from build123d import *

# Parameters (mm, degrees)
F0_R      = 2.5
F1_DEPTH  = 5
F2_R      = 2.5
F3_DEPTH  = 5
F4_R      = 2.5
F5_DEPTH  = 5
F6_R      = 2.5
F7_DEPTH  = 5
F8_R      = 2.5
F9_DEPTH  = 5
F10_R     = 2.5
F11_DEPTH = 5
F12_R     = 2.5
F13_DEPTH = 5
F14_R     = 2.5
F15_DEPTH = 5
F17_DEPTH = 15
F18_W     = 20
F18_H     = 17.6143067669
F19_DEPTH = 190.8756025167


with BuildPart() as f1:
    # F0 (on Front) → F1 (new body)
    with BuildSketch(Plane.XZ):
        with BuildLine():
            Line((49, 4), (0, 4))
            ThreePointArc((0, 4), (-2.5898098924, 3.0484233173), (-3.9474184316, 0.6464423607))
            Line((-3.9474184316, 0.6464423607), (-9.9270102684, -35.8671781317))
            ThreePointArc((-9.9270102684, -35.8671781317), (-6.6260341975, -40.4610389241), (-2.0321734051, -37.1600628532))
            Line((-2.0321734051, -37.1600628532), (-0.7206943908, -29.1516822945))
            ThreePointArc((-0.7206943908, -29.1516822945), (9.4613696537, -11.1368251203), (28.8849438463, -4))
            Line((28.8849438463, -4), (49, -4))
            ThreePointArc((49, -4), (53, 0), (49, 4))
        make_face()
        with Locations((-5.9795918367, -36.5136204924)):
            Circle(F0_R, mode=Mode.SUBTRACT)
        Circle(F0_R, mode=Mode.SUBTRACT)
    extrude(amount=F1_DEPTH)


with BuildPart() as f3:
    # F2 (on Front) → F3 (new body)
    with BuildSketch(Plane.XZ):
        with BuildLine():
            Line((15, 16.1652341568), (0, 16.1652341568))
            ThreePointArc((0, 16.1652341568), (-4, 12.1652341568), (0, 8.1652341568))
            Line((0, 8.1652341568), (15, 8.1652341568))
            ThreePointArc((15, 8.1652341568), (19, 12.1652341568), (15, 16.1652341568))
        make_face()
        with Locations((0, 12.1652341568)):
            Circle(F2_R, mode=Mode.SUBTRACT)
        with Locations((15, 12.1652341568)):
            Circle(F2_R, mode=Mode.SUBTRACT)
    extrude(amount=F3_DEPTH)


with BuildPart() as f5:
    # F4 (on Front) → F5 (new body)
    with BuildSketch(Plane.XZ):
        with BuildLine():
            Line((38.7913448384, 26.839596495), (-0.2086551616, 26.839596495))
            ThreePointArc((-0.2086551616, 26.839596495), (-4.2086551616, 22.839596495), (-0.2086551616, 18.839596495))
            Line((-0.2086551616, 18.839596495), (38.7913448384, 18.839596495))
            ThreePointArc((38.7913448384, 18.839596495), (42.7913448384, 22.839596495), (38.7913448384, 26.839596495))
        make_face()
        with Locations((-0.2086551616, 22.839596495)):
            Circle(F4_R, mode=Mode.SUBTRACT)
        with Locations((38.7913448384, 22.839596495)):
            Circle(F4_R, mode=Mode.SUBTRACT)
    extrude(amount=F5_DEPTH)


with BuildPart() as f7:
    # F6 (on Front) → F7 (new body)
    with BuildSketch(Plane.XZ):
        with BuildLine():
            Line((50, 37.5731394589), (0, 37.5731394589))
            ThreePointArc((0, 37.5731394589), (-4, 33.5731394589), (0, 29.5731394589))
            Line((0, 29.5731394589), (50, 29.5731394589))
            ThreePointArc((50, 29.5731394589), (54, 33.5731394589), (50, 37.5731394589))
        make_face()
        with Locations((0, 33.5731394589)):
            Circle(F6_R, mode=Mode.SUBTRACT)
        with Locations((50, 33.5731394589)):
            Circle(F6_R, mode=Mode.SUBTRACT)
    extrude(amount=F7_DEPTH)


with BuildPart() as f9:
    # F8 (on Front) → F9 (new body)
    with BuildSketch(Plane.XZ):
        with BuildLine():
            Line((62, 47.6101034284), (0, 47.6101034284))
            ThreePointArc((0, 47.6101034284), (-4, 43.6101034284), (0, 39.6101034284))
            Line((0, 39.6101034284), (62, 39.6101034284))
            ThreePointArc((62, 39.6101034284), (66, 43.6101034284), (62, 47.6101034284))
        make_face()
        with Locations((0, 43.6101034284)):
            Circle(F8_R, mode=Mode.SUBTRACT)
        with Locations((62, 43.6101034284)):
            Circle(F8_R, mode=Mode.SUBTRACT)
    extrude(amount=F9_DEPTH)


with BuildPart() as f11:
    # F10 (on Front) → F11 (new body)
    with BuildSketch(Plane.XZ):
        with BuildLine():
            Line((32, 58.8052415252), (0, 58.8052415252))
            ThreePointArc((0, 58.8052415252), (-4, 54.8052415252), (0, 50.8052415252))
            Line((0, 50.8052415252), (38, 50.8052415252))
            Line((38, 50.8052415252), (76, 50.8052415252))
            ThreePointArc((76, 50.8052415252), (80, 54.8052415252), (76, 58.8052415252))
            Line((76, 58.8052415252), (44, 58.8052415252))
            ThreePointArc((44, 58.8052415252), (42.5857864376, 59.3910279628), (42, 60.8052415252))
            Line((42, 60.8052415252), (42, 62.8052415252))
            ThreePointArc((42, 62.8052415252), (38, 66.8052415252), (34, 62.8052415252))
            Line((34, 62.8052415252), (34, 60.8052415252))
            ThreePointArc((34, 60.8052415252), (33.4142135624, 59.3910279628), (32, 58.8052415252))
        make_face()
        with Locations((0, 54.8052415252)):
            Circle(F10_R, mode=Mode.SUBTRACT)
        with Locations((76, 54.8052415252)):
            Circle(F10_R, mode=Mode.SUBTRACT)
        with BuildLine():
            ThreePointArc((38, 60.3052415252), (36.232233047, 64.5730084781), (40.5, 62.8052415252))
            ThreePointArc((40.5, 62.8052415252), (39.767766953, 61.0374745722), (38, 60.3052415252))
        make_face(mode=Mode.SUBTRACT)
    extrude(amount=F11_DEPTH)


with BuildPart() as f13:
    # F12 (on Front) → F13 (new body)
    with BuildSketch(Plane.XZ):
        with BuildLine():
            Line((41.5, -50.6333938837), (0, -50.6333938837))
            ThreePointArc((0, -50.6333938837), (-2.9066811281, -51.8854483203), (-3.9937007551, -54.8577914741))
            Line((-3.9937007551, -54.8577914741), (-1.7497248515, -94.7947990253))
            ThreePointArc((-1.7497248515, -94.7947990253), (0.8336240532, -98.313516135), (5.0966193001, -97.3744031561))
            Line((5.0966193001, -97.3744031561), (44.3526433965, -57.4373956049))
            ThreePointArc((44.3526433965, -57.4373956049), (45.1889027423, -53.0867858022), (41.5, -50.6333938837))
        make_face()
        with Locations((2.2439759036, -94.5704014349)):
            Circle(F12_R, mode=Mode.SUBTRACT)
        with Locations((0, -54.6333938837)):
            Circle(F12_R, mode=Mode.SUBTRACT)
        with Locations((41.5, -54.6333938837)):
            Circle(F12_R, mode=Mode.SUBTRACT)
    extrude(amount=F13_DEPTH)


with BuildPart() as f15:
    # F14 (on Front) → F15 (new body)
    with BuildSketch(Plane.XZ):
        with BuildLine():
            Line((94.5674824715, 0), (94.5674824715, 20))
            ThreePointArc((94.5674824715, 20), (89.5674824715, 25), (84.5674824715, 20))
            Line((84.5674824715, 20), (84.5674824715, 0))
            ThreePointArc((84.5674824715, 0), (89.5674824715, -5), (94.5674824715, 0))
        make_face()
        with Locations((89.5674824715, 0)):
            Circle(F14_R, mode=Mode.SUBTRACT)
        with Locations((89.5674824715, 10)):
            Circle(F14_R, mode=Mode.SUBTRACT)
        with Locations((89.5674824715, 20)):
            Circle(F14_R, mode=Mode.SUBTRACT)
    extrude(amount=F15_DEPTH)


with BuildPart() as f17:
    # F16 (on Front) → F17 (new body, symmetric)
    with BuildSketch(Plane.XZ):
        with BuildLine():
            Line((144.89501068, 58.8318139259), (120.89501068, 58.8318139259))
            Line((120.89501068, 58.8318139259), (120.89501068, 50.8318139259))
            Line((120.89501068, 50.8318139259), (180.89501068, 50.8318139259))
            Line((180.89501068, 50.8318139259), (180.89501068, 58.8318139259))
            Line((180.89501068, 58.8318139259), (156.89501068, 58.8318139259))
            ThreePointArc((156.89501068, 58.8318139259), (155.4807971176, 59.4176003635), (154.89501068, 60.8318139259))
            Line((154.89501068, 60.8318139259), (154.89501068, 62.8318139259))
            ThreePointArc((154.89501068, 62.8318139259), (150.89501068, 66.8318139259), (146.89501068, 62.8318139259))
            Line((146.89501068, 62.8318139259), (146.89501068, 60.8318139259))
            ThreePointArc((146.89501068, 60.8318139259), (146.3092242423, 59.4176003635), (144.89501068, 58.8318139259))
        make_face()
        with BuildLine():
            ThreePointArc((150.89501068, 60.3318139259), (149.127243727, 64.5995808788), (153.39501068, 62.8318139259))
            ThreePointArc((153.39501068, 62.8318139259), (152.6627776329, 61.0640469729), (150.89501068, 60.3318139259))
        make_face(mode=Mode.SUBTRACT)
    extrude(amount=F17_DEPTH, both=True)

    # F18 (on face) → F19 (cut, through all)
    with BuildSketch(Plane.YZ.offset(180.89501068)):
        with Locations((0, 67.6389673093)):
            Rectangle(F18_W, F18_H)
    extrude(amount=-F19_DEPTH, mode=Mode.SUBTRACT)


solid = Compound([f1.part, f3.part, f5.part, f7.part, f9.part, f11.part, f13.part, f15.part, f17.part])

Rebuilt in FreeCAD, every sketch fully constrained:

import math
import FreeCAD as App
import Part
import Sketcher
Q = App.Units.Quantity

doc = App.newDocument("Part")
body = doc.addObject("PartDesign::Body", "Body")

sketch1 = doc.addObject("Sketcher::SketchObject", "Sketch")
body.addObject(sketch1)
sketch1.AttachmentSupport = (doc.XZ_Plane, [""])
sketch1.MapMode = "FlatFace"
sketch1.addGeometry(Part.LineSegment(App.Vector(49, 4, 0), App.Vector(0, 4, 0)), False)
sketch1.addGeometry(Part.ArcOfCircle(Part.Circle(App.Vector(0, 0, 0), App.Vector(0, 0, 1), 4), math.radians(90), math.radians(170.699607)), False)
sketch1.addGeometry(Part.LineSegment(App.Vector(-3.947418, 0.646442, 0), App.Vector(-9.92701, -35.867178, 0)), False)
sketch1.addGeometry(Part.ArcOfCircle(Part.Circle(App.Vector(-5.979592, -36.51362, 0), App.Vector(0, 0, 1), 4), math.radians(170.699607), math.radians(350.699607)), False)
sketch1.addGeometry(Part.LineSegment(App.Vector(-2.032173, -37.160063, 0), App.Vector(-0.720694, -29.151682, 0)), False)
sketch1.addGeometry(Part.ArcOfCircle(Part.Circle(App.Vector(28.884944, -34, 0), App.Vector(0, 0, 1), 30), math.radians(90), math.radians(170.699607)), False)
sketch1.addGeometry(Part.LineSegment(App.Vector(28.884944, -4, 0), App.Vector(49, -4, 0)), False)
sketch1.addGeometry(Part.ArcOfCircle(Part.Circle(App.Vector(49, 0, 0), App.Vector(0, 0, 1), 4), math.radians(-90), math.radians(90)), False)
sketch1.addGeometry(Part.Circle(App.Vector(-5.979592, -36.51362, 0), App.Vector(0, 0, 1), 2.5), False)
sketch1.addGeometry(Part.Circle(App.Vector(0, 0, 0), App.Vector(0, 0, 1), 2.5), False)
sketch1.addConstraint(Sketcher.Constraint("Tangent", 0, 2, 1, 1))
sketch1.addConstraint(Sketcher.Constraint("Tangent", 1, 2, 2, 1))
sketch1.addConstraint(Sketcher.Constraint("Tangent", 2, 2, 3, 1))
sketch1.addConstraint(Sketcher.Constraint("Tangent", 3, 2, 4, 1))
sketch1.addConstraint(Sketcher.Constraint("Tangent", 4, 2, 5, 2))
sketch1.addConstraint(Sketcher.Constraint("Tangent", 5, 1, 6, 1))
sketch1.addConstraint(Sketcher.Constraint("Tangent", 6, 2, 7, 1))
sketch1.addConstraint(Sketcher.Constraint("Tangent", 7, 2, 0, 1))
sketch1.addConstraint(Sketcher.Constraint("Horizontal", 0))
sketch1.addConstraint(Sketcher.Constraint("Horizontal", 6))
sketch1.addConstraint(Sketcher.Constraint("Coincident", 1, 3, -1, 1))
sketch1.addConstraint(Sketcher.Constraint("Coincident", 9, 3, -1, 1))
sketch1.addConstraint(Sketcher.Constraint("Coincident", 8, 3, 3, 3))
sketch1.addConstraint(Sketcher.Constraint("Equal", 1, 3))
sketch1.addConstraint(Sketcher.Constraint("Equal", 3, 7))
sketch1.addConstraint(Sketcher.Constraint("Equal", 8, 9))
sketch1.addConstraint(Sketcher.Constraint("Parallel", 2, 4))
sketch1.addConstraint(Sketcher.Constraint("Diameter", 8, Q("5 mm")))
sketch1.addConstraint(Sketcher.Constraint("Radius", 1, Q("4 mm")))
sketch1.addConstraint(Sketcher.Constraint("Radius", 5, Q("30 mm")))
sketch1.addConstraint(Sketcher.Constraint("DistanceX", 0, 2, 0, 1, Q("49 mm")))
sketch1.addConstraint(Sketcher.Constraint("Distance", 2, Q("37 mm")))
sketch1.addConstraint(Sketcher.Constraint("DistanceX", 6, 1, 6, 2, Q("20.115056 mm")))
pad1 = doc.addObject("PartDesign::Pad", "Pad")
body.addObject(pad1)
pad1.Profile = sketch1
pad1.Length = 5
body2 = doc.addObject("PartDesign::Body", "Body001")

sketch2 = doc.addObject("Sketcher::SketchObject", "Sketch001")
body2.addObject(sketch2)
sketch2.AttachmentSupport = (doc.getObject("XZ_Plane001"), [""])
sketch2.MapMode = "FlatFace"
sketch2.addGeometry(Part.LineSegment(App.Vector(15, 16.165234, 0), App.Vector(0, 16.165234, 0)), False)
sketch2.addGeometry(Part.ArcOfCircle(Part.Circle(App.Vector(0, 12.165234, 0), App.Vector(0, 0, 1), 4), math.radians(90), math.radians(270)), False)
sketch2.addGeometry(Part.LineSegment(App.Vector(0, 8.165234, 0), App.Vector(15, 8.165234, 0)), False)
sketch2.addGeometry(Part.ArcOfCircle(Part.Circle(App.Vector(15, 12.165234, 0), App.Vector(0, 0, 1), 4), math.radians(-90), math.radians(90)), False)
sketch2.addGeometry(Part.Circle(App.Vector(0, 12.165234, 0), App.Vector(0, 0, 1), 2.5), False)
sketch2.addGeometry(Part.Circle(App.Vector(15, 12.165234, 0), App.Vector(0, 0, 1), 2.5), False)
sketch2.addConstraint(Sketcher.Constraint("Tangent", 0, 2, 1, 1))
sketch2.addConstraint(Sketcher.Constraint("Tangent", 1, 2, 2, 1))
sketch2.addConstraint(Sketcher.Constraint("Tangent", 2, 2, 3, 1))
sketch2.addConstraint(Sketcher.Constraint("Tangent", 3, 2, 0, 1))
sketch2.addConstraint(Sketcher.Constraint("Horizontal", 0))
sketch2.addConstraint(Sketcher.Constraint("Horizontal", 2))
sketch2.addConstraint(Sketcher.Constraint("Coincident", 4, 3, 1, 3))
sketch2.addConstraint(Sketcher.Constraint("Coincident", 5, 3, 3, 3))
sketch2.addConstraint(Sketcher.Constraint("Equal", 4, 5))
sketch2.addConstraint(Sketcher.Constraint("PointOnObject", 1, 3, -2))
sketch2.addConstraint(Sketcher.Constraint("Diameter", 4, Q("5 mm")))
sketch2.addConstraint(Sketcher.Constraint("Radius", 1, Q("4 mm")))
sketch2.addConstraint(Sketcher.Constraint("DistanceX", 0, 2, 0, 1, Q("15 mm")))
sketch2.addConstraint(Sketcher.Constraint("DistanceY", -1, 1, 1, 3, Q("12.165234 mm")))
pad2 = doc.addObject("PartDesign::Pad", "Pad001")
body2.addObject(pad2)
pad2.Profile = sketch2
pad2.Length = 5
body3 = doc.addObject("PartDesign::Body", "Body002")

sketch3 = doc.addObject("Sketcher::SketchObject", "Sketch002")
body3.addObject(sketch3)
sketch3.AttachmentSupport = (doc.getObject("XZ_Plane002"), [""])
sketch3.MapMode = "FlatFace"
sketch3.addGeometry(Part.LineSegment(App.Vector(38.791345, 26.839596, 0), App.Vector(-0.208655, 26.839596, 0)), False)
sketch3.addGeometry(Part.ArcOfCircle(Part.Circle(App.Vector(-0.208655, 22.839596, 0), App.Vector(0, 0, 1), 4), math.radians(90), math.radians(270)), False)
sketch3.addGeometry(Part.LineSegment(App.Vector(-0.208655, 18.839596, 0), App.Vector(38.791345, 18.839596, 0)), False)
sketch3.addGeometry(Part.ArcOfCircle(Part.Circle(App.Vector(38.791345, 22.839596, 0), App.Vector(0, 0, 1), 4), math.radians(-90), math.radians(90)), False)
sketch3.addGeometry(Part.Circle(App.Vector(-0.208655, 22.839596, 0), App.Vector(0, 0, 1), 2.5), False)
sketch3.addGeometry(Part.Circle(App.Vector(38.791345, 22.839596, 0), App.Vector(0, 0, 1), 2.5), False)
sketch3.addConstraint(Sketcher.Constraint("Tangent", 0, 2, 1, 1))
sketch3.addConstraint(Sketcher.Constraint("Tangent", 1, 2, 2, 1))
sketch3.addConstraint(Sketcher.Constraint("Tangent", 2, 2, 3, 1))
sketch3.addConstraint(Sketcher.Constraint("Tangent", 3, 2, 0, 1))
sketch3.addConstraint(Sketcher.Constraint("Horizontal", 0))
sketch3.addConstraint(Sketcher.Constraint("Horizontal", 2))
sketch3.addConstraint(Sketcher.Constraint("Coincident", 4, 3, 1, 3))
sketch3.addConstraint(Sketcher.Constraint("Coincident", 5, 3, 3, 3))
sketch3.addConstraint(Sketcher.Constraint("Equal", 4, 5))
sketch3.addConstraint(Sketcher.Constraint("Diameter", 4, Q("5 mm")))
sketch3.addConstraint(Sketcher.Constraint("Radius", 1, Q("4 mm")))
sketch3.addConstraint(Sketcher.Constraint("DistanceX", 0, 2, 0, 1, Q("39 mm")))
sketch3.addConstraint(Sketcher.Constraint("DistanceX", 1, 3, -1, 1, Q("0.208655 mm")))
sketch3.addConstraint(Sketcher.Constraint("DistanceY", -1, 1, 1, 3, Q("22.839596 mm")))
pad3 = doc.addObject("PartDesign::Pad", "Pad002")
body3.addObject(pad3)
pad3.Profile = sketch3
pad3.Length = 5
body4 = doc.addObject("PartDesign::Body", "Body003")

sketch4 = doc.addObject("Sketcher::SketchObject", "Sketch003")
body4.addObject(sketch4)
sketch4.AttachmentSupport = (doc.getObject("XZ_Plane003"), [""])
sketch4.MapMode = "FlatFace"
sketch4.addGeometry(Part.LineSegment(App.Vector(50, 37.573139, 0), App.Vector(0, 37.573139, 0)), False)
sketch4.addGeometry(Part.ArcOfCircle(Part.Circle(App.Vector(0, 33.573139, 0), App.Vector(0, 0, 1), 4), math.radians(90), math.radians(270)), False)
sketch4.addGeometry(Part.LineSegment(App.Vector(0, 29.573139, 0), App.Vector(50, 29.573139, 0)), False)
sketch4.addGeometry(Part.ArcOfCircle(Part.Circle(App.Vector(50, 33.573139, 0), App.Vector(0, 0, 1), 4), math.radians(-90), math.radians(90)), False)
sketch4.addGeometry(Part.Circle(App.Vector(0, 33.573139, 0), App.Vector(0, 0, 1), 2.5), False)
sketch4.addGeometry(Part.Circle(App.Vector(50, 33.573139, 0), App.Vector(0, 0, 1), 2.5), False)
sketch4.addConstraint(Sketcher.Constraint("Tangent", 0, 2, 1, 1))
sketch4.addConstraint(Sketcher.Constraint("Tangent", 1, 2, 2, 1))
sketch4.addConstraint(Sketcher.Constraint("Tangent", 2, 2, 3, 1))
sketch4.addConstraint(Sketcher.Constraint("Tangent", 3, 2, 0, 1))
sketch4.addConstraint(Sketcher.Constraint("Horizontal", 0))
sketch4.addConstraint(Sketcher.Constraint("Horizontal", 2))
sketch4.addConstraint(Sketcher.Constraint("Coincident", 4, 3, 1, 3))
sketch4.addConstraint(Sketcher.Constraint("Coincident", 5, 3, 3, 3))
sketch4.addConstraint(Sketcher.Constraint("Equal", 4, 5))
sketch4.addConstraint(Sketcher.Constraint("PointOnObject", 1, 3, -2))
sketch4.addConstraint(Sketcher.Constraint("Diameter", 4, Q("5 mm")))
sketch4.addConstraint(Sketcher.Constraint("Radius", 1, Q("4 mm")))
sketch4.addConstraint(Sketcher.Constraint("DistanceX", 0, 2, 0, 1, Q("50 mm")))
sketch4.addConstraint(Sketcher.Constraint("DistanceY", -1, 1, 1, 3, Q("33.573139 mm")))
pad4 = doc.addObject("PartDesign::Pad", "Pad003")
body4.addObject(pad4)
pad4.Profile = sketch4
pad4.Length = 5
body5 = doc.addObject("PartDesign::Body", "Body004")

sketch5 = doc.addObject("Sketcher::SketchObject", "Sketch004")
body5.addObject(sketch5)
sketch5.AttachmentSupport = (doc.getObject("XZ_Plane004"), [""])
sketch5.MapMode = "FlatFace"
sketch5.addGeometry(Part.LineSegment(App.Vector(62, 47.610103, 0), App.Vector(0, 47.610103, 0)), False)
sketch5.addGeometry(Part.ArcOfCircle(Part.Circle(App.Vector(0, 43.610103, 0), App.Vector(0, 0, 1), 4), math.radians(90), math.radians(270)), False)
sketch5.addGeometry(Part.LineSegment(App.Vector(0, 39.610103, 0), App.Vector(62, 39.610103, 0)), False)
sketch5.addGeometry(Part.ArcOfCircle(Part.Circle(App.Vector(62, 43.610103, 0), App.Vector(0, 0, 1), 4), math.radians(-90), math.radians(90)), False)
sketch5.addGeometry(Part.Circle(App.Vector(0, 43.610103, 0), App.Vector(0, 0, 1), 2.5), False)
sketch5.addGeometry(Part.Circle(App.Vector(62, 43.610103, 0), App.Vector(0, 0, 1), 2.5), False)
sketch5.addConstraint(Sketcher.Constraint("Tangent", 0, 2, 1, 1))
sketch5.addConstraint(Sketcher.Constraint("Tangent", 1, 2, 2, 1))
sketch5.addConstraint(Sketcher.Constraint("Tangent", 2, 2, 3, 1))
sketch5.addConstraint(Sketcher.Constraint("Tangent", 3, 2, 0, 1))
sketch5.addConstraint(Sketcher.Constraint("Horizontal", 0))
sketch5.addConstraint(Sketcher.Constraint("Horizontal", 2))
sketch5.addConstraint(Sketcher.Constraint("Coincident", 4, 3, 1, 3))
sketch5.addConstraint(Sketcher.Constraint("Coincident", 5, 3, 3, 3))
sketch5.addConstraint(Sketcher.Constraint("Equal", 4, 5))
sketch5.addConstraint(Sketcher.Constraint("PointOnObject", 1, 3, -2))
sketch5.addConstraint(Sketcher.Constraint("Diameter", 4, Q("5 mm")))
sketch5.addConstraint(Sketcher.Constraint("Radius", 1, Q("4 mm")))
sketch5.addConstraint(Sketcher.Constraint("DistanceX", 0, 2, 0, 1, Q("62 mm")))
sketch5.addConstraint(Sketcher.Constraint("DistanceY", -1, 1, 1, 3, Q("43.610103 mm")))
pad5 = doc.addObject("PartDesign::Pad", "Pad004")
body5.addObject(pad5)
pad5.Profile = sketch5
pad5.Length = 5
body6 = doc.addObject("PartDesign::Body", "Body005")

sketch6 = doc.addObject("Sketcher::SketchObject", "Sketch005")
body6.addObject(sketch6)
sketch6.AttachmentSupport = (doc.getObject("XZ_Plane005"), [""])
sketch6.MapMode = "FlatFace"
sketch6.addGeometry(Part.LineSegment(App.Vector(32, 58.805242, 0), App.Vector(0, 58.805242, 0)), False)
sketch6.addGeometry(Part.ArcOfCircle(Part.Circle(App.Vector(0, 54.805242, 0), App.Vector(0, 0, 1), 4), math.radians(90), math.radians(270)), False)
sketch6.addGeometry(Part.LineSegment(App.Vector(0, 50.805242, 0), App.Vector(76, 50.805242, 0)), False)
sketch6.addGeometry(Part.ArcOfCircle(Part.Circle(App.Vector(76, 54.805242, 0), App.Vector(0, 0, 1), 4), math.radians(-90), math.radians(90)), False)
sketch6.addGeometry(Part.LineSegment(App.Vector(76, 58.805242, 0), App.Vector(44, 58.805242, 0)), False)
sketch6.addGeometry(Part.ArcOfCircle(Part.Circle(App.Vector(44, 60.805242, 0), App.Vector(0, 0, 1), 2), math.radians(180), math.radians(270)), False)
sketch6.addGeometry(Part.LineSegment(App.Vector(42, 60.805242, 0), App.Vector(42, 62.805242, 0)), False)
sketch6.addGeometry(Part.ArcOfCircle(Part.Circle(App.Vector(38, 62.805242, 0), App.Vector(0, 0, 1), 4), math.radians(0), math.radians(180)), False)
sketch6.addGeometry(Part.LineSegment(App.Vector(34, 62.805242, 0), App.Vector(34, 60.805242, 0)), False)
sketch6.addGeometry(Part.ArcOfCircle(Part.Circle(App.Vector(32, 60.805242, 0), App.Vector(0, 0, 1), 2), math.radians(-90), math.radians(0)), False)
sketch6.addGeometry(Part.Circle(App.Vector(0, 54.805242, 0), App.Vector(0, 0, 1), 2.5), False)
sketch6.addGeometry(Part.Circle(App.Vector(76, 54.805242, 0), App.Vector(0, 0, 1), 2.5), False)
sketch6.addGeometry(Part.ArcOfCircle(Part.Circle(App.Vector(38, 62.805242, 0), App.Vector(0, 0, 1), 2.5), math.radians(-90), math.radians(0)), False)
sketch6.addGeometry(Part.ArcOfCircle(Part.Circle(App.Vector(38, 62.805242, 0), App.Vector(0, 0, 1), 2.5), math.radians(0), math.radians(270)), False)
sketch6.addConstraint(Sketcher.Constraint("Tangent", 0, 2, 1, 1))
sketch6.addConstraint(Sketcher.Constraint("Tangent", 1, 2, 2, 1))
sketch6.addConstraint(Sketcher.Constraint("Tangent", 2, 2, 3, 1))
sketch6.addConstraint(Sketcher.Constraint("Tangent", 3, 2, 4, 1))
sketch6.addConstraint(Sketcher.Constraint("Tangent", 4, 2, 5, 2))
sketch6.addConstraint(Sketcher.Constraint("Tangent", 5, 1, 6, 1))
sketch6.addConstraint(Sketcher.Constraint("Tangent", 6, 2, 7, 1))
sketch6.addConstraint(Sketcher.Constraint("Tangent", 7, 2, 8, 1))
sketch6.addConstraint(Sketcher.Constraint("Tangent", 8, 2, 9, 2))
sketch6.addConstraint(Sketcher.Constraint("Tangent", 9, 1, 0, 1))
sketch6.addConstraint(Sketcher.Constraint("Tangent", 12, 1, 13, 2))
sketch6.addConstraint(Sketcher.Constraint("Coincident", 13, 1, 12, 2))
sketch6.addConstraint(Sketcher.Constraint("Horizontal", 0))
sketch6.addConstraint(Sketcher.Constraint("Horizontal", 2))
sketch6.addConstraint(Sketcher.Constraint("Horizontal", 4))
sketch6.addConstraint(Sketcher.Constraint("Vertical", 6))
sketch6.addConstraint(Sketcher.Constraint("Vertical", 8))
sketch6.addConstraint(Sketcher.Constraint("Coincident", 10, 3, 1, 3))
sketch6.addConstraint(Sketcher.Constraint("Coincident", 11, 3, 3, 3))
sketch6.addConstraint(Sketcher.Constraint("Coincident", 12, 3, 7, 3))
sketch6.addConstraint(Sketcher.Constraint("Equal", 1, 3))
sketch6.addConstraint(Sketcher.Constraint("Equal", 3, 7))
sketch6.addConstraint(Sketcher.Constraint("Equal", 5, 9))
sketch6.addConstraint(Sketcher.Constraint("Equal", 10, 11))
sketch6.addConstraint(Sketcher.Constraint("Equal", 11, 12))
sketch6.addConstraint(Sketcher.Constraint("PointOnObject", 1, 3, -2))
sketch6.addConstraint(Sketcher.Constraint("Horizontal", 7, 2, 13, 1))
sketch6.addConstraint(Sketcher.Constraint("Vertical", 13, 3, 12, 1))
sketch6.addConstraint(Sketcher.Constraint("Equal", 0, 4))
sketch6.addConstraint(Sketcher.Constraint("Diameter", 10, Q("5 mm")))
sketch6.addConstraint(Sketcher.Constraint("Radius", 1, Q("4 mm")))
sketch6.addConstraint(Sketcher.Constraint("Radius", 5, Q("2 mm")))
sketch6.addConstraint(Sketcher.Constraint("DistanceX", 0, 2, 0, 1, Q("32 mm")))
sketch6.addConstraint(Sketcher.Constraint("DistanceY", 6, 1, 6, 2, Q("2 mm")))
sketch6.addConstraint(Sketcher.Constraint("DistanceY", -1, 1, 1, 3, Q("54.805242 mm")))
pad6 = doc.addObject("PartDesign::Pad", "Pad005")
body6.addObject(pad6)
pad6.Profile = sketch6
pad6.Length = 5
body7 = doc.addObject("PartDesign::Body", "Body006")

sketch7 = doc.addObject("Sketcher::SketchObject", "Sketch006")
body7.addObject(sketch7)
sketch7.AttachmentSupport = (doc.getObject("XZ_Plane006"), [""])
sketch7.MapMode = "FlatFace"
sketch7.addGeometry(Part.LineSegment(App.Vector(41.5, -50.633394, 0), App.Vector(0, -50.633394, 0)), False)
sketch7.addGeometry(Part.ArcOfCircle(Part.Circle(App.Vector(0, -54.633394, 0), App.Vector(0, 0, 1), 4), math.radians(90), math.radians(183.215947)), False)
sketch7.addGeometry(Part.LineSegment(App.Vector(-3.993701, -54.857791, 0), App.Vector(-1.749725, -94.794799, 0)), False)
sketch7.addGeometry(Part.ArcOfCircle(Part.Circle(App.Vector(2.243976, -94.570401, 0), App.Vector(0, 0, 1), 4), math.radians(-176.784053), math.radians(-44.507324)), False)
sketch7.addGeometry(Part.LineSegment(App.Vector(5.096619, -97.374403, 0), App.Vector(44.352643, -57.437396, 0)), False)
sketch7.addGeometry(Part.ArcOfCircle(Part.Circle(App.Vector(41.5, -54.633394, 0), App.Vector(0, 0, 1), 4), math.radians(-44.507324), math.radians(90)), False)
sketch7.addGeometry(Part.Circle(App.Vector(2.243976, -94.570401, 0), App.Vector(0, 0, 1), 2.5), False)
sketch7.addGeometry(Part.Circle(App.Vector(0, -54.633394, 0), App.Vector(0, 0, 1), 2.5), False)
sketch7.addGeometry(Part.Circle(App.Vector(41.5, -54.633394, 0), App.Vector(0, 0, 1), 2.5), False)
sketch7.addConstraint(Sketcher.Constraint("Tangent", 0, 2, 1, 1))
sketch7.addConstraint(Sketcher.Constraint("Tangent", 1, 2, 2, 1))
sketch7.addConstraint(Sketcher.Constraint("Tangent", 2, 2, 3, 1))
sketch7.addConstraint(Sketcher.Constraint("Tangent", 3, 2, 4, 1))
sketch7.addConstraint(Sketcher.Constraint("Tangent", 4, 2, 5, 1))
sketch7.addConstraint(Sketcher.Constraint("Tangent", 5, 2, 0, 1))
sketch7.addConstraint(Sketcher.Constraint("Horizontal", 0))
sketch7.addConstraint(Sketcher.Constraint("Coincident", 6, 3, 3, 3))
sketch7.addConstraint(Sketcher.Constraint("Coincident", 7, 3, 1, 3))
sketch7.addConstraint(Sketcher.Constraint("Coincident", 8, 3, 5, 3))
sketch7.addConstraint(Sketcher.Constraint("Equal", 1, 3))
sketch7.addConstraint(Sketcher.Constraint("Equal", 3, 5))
sketch7.addConstraint(Sketcher.Constraint("Equal", 6, 7))
sketch7.addConstraint(Sketcher.Constraint("Equal", 7, 8))
sketch7.addConstraint(Sketcher.Constraint("PointOnObject", 1, 3, -2))
sketch7.addConstraint(Sketcher.Constraint("Diameter", 6, Q("5 mm")))
sketch7.addConstraint(Sketcher.Constraint("Radius", 1, Q("4 mm")))
sketch7.addConstraint(Sketcher.Constraint("Distance", 2, Q("40 mm")))
sketch7.addConstraint(Sketcher.Constraint("Distance", 4, Q("56 mm")))
sketch7.addConstraint(Sketcher.Constraint("DistanceX", 0, 2, 0, 1, Q("41.5 mm")))
sketch7.addConstraint(Sketcher.Constraint("DistanceY", 3, 3, -1, 1, Q("94.570401 mm")))
pad7 = doc.addObject("PartDesign::Pad", "Pad006")
body7.addObject(pad7)
pad7.Profile = sketch7
pad7.Length = 5
body8 = doc.addObject("PartDesign::Body", "Body007")

sketch8 = doc.addObject("Sketcher::SketchObject", "Sketch007")
body8.addObject(sketch8)
sketch8.AttachmentSupport = (doc.getObject("XZ_Plane007"), [""])
sketch8.MapMode = "FlatFace"
sketch8.addGeometry(Part.LineSegment(App.Vector(94.567482, 0, 0), App.Vector(94.567482, 20, 0)), False)
sketch8.addGeometry(Part.ArcOfCircle(Part.Circle(App.Vector(89.567482, 20, 0), App.Vector(0, 0, 1), 5), math.radians(0), math.radians(180)), False)
sketch8.addGeometry(Part.LineSegment(App.Vector(84.567482, 20, 0), App.Vector(84.567482, 0, 0)), False)
sketch8.addGeometry(Part.ArcOfCircle(Part.Circle(App.Vector(89.567482, 0, 0), App.Vector(0, 0, 1), 5), math.radians(180), math.radians(360)), False)
sketch8.addGeometry(Part.Circle(App.Vector(89.567482, 0, 0), App.Vector(0, 0, 1), 2.5), False)
sketch8.addGeometry(Part.Circle(App.Vector(89.567482, 10, 0), App.Vector(0, 0, 1), 2.5), False)
sketch8.addGeometry(Part.Circle(App.Vector(89.567482, 20, 0), App.Vector(0, 0, 1), 2.5), False)
sketch8.addConstraint(Sketcher.Constraint("Tangent", 0, 2, 1, 1))
sketch8.addConstraint(Sketcher.Constraint("Tangent", 1, 2, 2, 1))
sketch8.addConstraint(Sketcher.Constraint("Tangent", 2, 2, 3, 1))
sketch8.addConstraint(Sketcher.Constraint("Tangent", 3, 2, 0, 1))
sketch8.addConstraint(Sketcher.Constraint("Vertical", 0))
sketch8.addConstraint(Sketcher.Constraint("Vertical", 2))
sketch8.addConstraint(Sketcher.Constraint("Coincident", 4, 3, 3, 3))
sketch8.addConstraint(Sketcher.Constraint("Coincident", 6, 3, 1, 3))
sketch8.addConstraint(Sketcher.Constraint("Equal", 4, 5))
sketch8.addConstraint(Sketcher.Constraint("Equal", 5, 6))
sketch8.addConstraint(Sketcher.Constraint("PointOnObject", 3, 3, -1))
sketch8.addConstraint(Sketcher.Constraint("Vertical", 4, 3, 5, 3))
sketch8.addConstraint(Sketcher.Constraint("Diameter", 4, Q("5 mm")))
sketch8.addConstraint(Sketcher.Constraint("Radius", 1, Q("5 mm")))
sketch8.addConstraint(Sketcher.Constraint("DistanceY", 0, 1, 0, 2, Q("20 mm")))
sketch8.addConstraint(Sketcher.Constraint("DistanceY", -1, 1, 5, 3, Q("10 mm")))
sketch8.addConstraint(Sketcher.Constraint("DistanceX", -1, 1, 1, 3, Q("89.567482 mm")))
pad8 = doc.addObject("PartDesign::Pad", "Pad007")
body8.addObject(pad8)
pad8.Profile = sketch8
pad8.Length = 5
body9 = doc.addObject("PartDesign::Body", "Body008")

sketch9 = doc.addObject("Sketcher::SketchObject", "Sketch008")
body9.addObject(sketch9)
sketch9.AttachmentSupport = (doc.getObject("XZ_Plane008"), [""])
sketch9.MapMode = "FlatFace"
sketch9.addGeometry(Part.LineSegment(App.Vector(144.895011, 58.831814, 0), App.Vector(120.895011, 58.831814, 0)), False)
sketch9.addGeometry(Part.LineSegment(App.Vector(120.895011, 58.831814, 0), App.Vector(120.895011, 50.831814, 0)), False)
sketch9.addGeometry(Part.LineSegment(App.Vector(120.895011, 50.831814, 0), App.Vector(180.895011, 50.831814, 0)), False)
sketch9.addGeometry(Part.LineSegment(App.Vector(180.895011, 50.831814, 0), App.Vector(180.895011, 58.831814, 0)), False)
sketch9.addGeometry(Part.LineSegment(App.Vector(180.895011, 58.831814, 0), App.Vector(156.895011, 58.831814, 0)), False)
sketch9.addGeometry(Part.ArcOfCircle(Part.Circle(App.Vector(156.895011, 60.831814, 0), App.Vector(0, 0, 1), 2), math.radians(180), math.radians(270)), False)
sketch9.addGeometry(Part.LineSegment(App.Vector(154.895011, 60.831814, 0), App.Vector(154.895011, 62.831814, 0)), False)
sketch9.addGeometry(Part.ArcOfCircle(Part.Circle(App.Vector(150.895011, 62.831814, 0), App.Vector(0, 0, 1), 4), math.radians(0), math.radians(180)), False)
sketch9.addGeometry(Part.LineSegment(App.Vector(146.895011, 62.831814, 0), App.Vector(146.895011, 60.831814, 0)), False)
sketch9.addGeometry(Part.ArcOfCircle(Part.Circle(App.Vector(144.895011, 60.831814, 0), App.Vector(0, 0, 1), 2), math.radians(-90), math.radians(0)), False)
sketch9.addGeometry(Part.ArcOfCircle(Part.Circle(App.Vector(150.895011, 62.831814, 0), App.Vector(0, 0, 1), 2.5), math.radians(-90), math.radians(0)), False)
sketch9.addGeometry(Part.ArcOfCircle(Part.Circle(App.Vector(150.895011, 62.831814, 0), App.Vector(0, 0, 1), 2.5), math.radians(0), math.radians(270)), False)
sketch9.addConstraint(Sketcher.Constraint("Coincident", 0, 2, 1, 1))
sketch9.addConstraint(Sketcher.Constraint("Coincident", 1, 2, 2, 1))
sketch9.addConstraint(Sketcher.Constraint("Coincident", 2, 2, 3, 1))
sketch9.addConstraint(Sketcher.Constraint("Coincident", 3, 2, 4, 1))
sketch9.addConstraint(Sketcher.Constraint("Tangent", 4, 2, 5, 2))
sketch9.addConstraint(Sketcher.Constraint("Tangent", 5, 1, 6, 1))
sketch9.addConstraint(Sketcher.Constraint("Tangent", 6, 2, 7, 1))
sketch9.addConstraint(Sketcher.Constraint("Tangent", 7, 2, 8, 1))
sketch9.addConstraint(Sketcher.Constraint("Tangent", 8, 2, 9, 2))
sketch9.addConstraint(Sketcher.Constraint("Tangent", 9, 1, 0, 1))
sketch9.addConstraint(Sketcher.Constraint("Tangent", 10, 1, 11, 2))
sketch9.addConstraint(Sketcher.Constraint("Coincident", 11, 1, 10, 2))
sketch9.addConstraint(Sketcher.Constraint("Horizontal", 0))
sketch9.addConstraint(Sketcher.Constraint("Vertical", 1))
sketch9.addConstraint(Sketcher.Constraint("Horizontal", 2))
sketch9.addConstraint(Sketcher.Constraint("Vertical", 3))
sketch9.addConstraint(Sketcher.Constraint("Horizontal", 4))
sketch9.addConstraint(Sketcher.Constraint("Vertical", 6))
sketch9.addConstraint(Sketcher.Constraint("Vertical", 8))
sketch9.addConstraint(Sketcher.Constraint("Coincident", 10, 3, 7, 3))
sketch9.addConstraint(Sketcher.Constraint("Equal", 5, 9))
sketch9.addConstraint(Sketcher.Constraint("Horizontal", 5, 3, 9, 3))
sketch9.addConstraint(Sketcher.Constraint("Horizontal", 7, 2, 11, 1))
sketch9.addConstraint(Sketcher.Constraint("Vertical", 11, 3, 10, 1))
sketch9.addConstraint(Sketcher.Constraint("Equal", 0, 4))
sketch9.addConstraint(Sketcher.Constraint("Radius", 5, Q("2 mm")))
sketch9.addConstraint(Sketcher.Constraint("Radius", 7, Q("4 mm")))
sketch9.addConstraint(Sketcher.Constraint("Radius", 10, Q("2.5 mm")))
sketch9.addConstraint(Sketcher.Constraint("DistanceX", 0, 2, 0, 1, Q("24 mm")))
sketch9.addConstraint(Sketcher.Constraint("DistanceY", 1, 2, 1, 1, Q("8 mm")))
sketch9.addConstraint(Sketcher.Constraint("DistanceY", 6, 1, 6, 2, Q("2 mm")))
sketch9.addConstraint(Sketcher.Constraint("DistanceX", -1, 1, 5, 3, Q("156.895011 mm")))
sketch9.addConstraint(Sketcher.Constraint("DistanceY", -1, 1, 5, 3, Q("60.831814 mm")))
pad9 = doc.addObject("PartDesign::Pad", "Pad008")
body9.addObject(pad9)
pad9.Profile = sketch9
pad9.Length = 30
pad9.Midplane = True

sketch10 = doc.addObject("Sketcher::SketchObject", "Sketch009")
body9.addObject(sketch10)
sketch10.AttachmentSupport = (doc.getObject("YZ_Plane008"), [""])
sketch10.MapMode = "FlatFace"
sketch10.AttachmentOffset = App.Placement(App.Vector(0, 0, 180.895011), App.Rotation())
sketch10.addGeometry(Part.LineSegment(App.Vector(-10, 76.446121, 0), App.Vector(-10, 58.831814, 0)), False)
sketch10.addGeometry(Part.LineSegment(App.Vector(-10, 58.831814, 0), App.Vector(10, 58.831814, 0)), False)
sketch10.addGeometry(Part.LineSegment(App.Vector(10, 58.831814, 0), App.Vector(10, 76.446121, 0)), False)
sketch10.addGeometry(Part.LineSegment(App.Vector(10, 76.446121, 0), App.Vector(-10, 76.446121, 0)), False)
sketch10.addConstraint(Sketcher.Constraint("Coincident", 0, 2, 1, 1))
sketch10.addConstraint(Sketcher.Constraint("Coincident", 1, 2, 2, 1))
sketch10.addConstraint(Sketcher.Constraint("Coincident", 2, 2, 3, 1))
sketch10.addConstraint(Sketcher.Constraint("Coincident", 3, 2, 0, 1))
sketch10.addConstraint(Sketcher.Constraint("Vertical", 0))
sketch10.addConstraint(Sketcher.Constraint("Horizontal", 1))
sketch10.addConstraint(Sketcher.Constraint("Vertical", 2))
sketch10.addConstraint(Sketcher.Constraint("Horizontal", 3))
sketch10.addConstraint(Sketcher.Constraint("DistanceX", 1, 1, 1, 2, Q("20 mm")))
sketch10.addConstraint(Sketcher.Constraint("DistanceX", 0, 2, -1, 1, Q("10 mm")))
sketch10.addConstraint(Sketcher.Constraint("DistanceY", 0, 2, 0, 1, Q("17.614307 mm")))
sketch10.addConstraint(Sketcher.Constraint("DistanceY", -1, 1, 2, 2, Q("76.446121 mm")))
pocket1 = doc.addObject("PartDesign::Pocket", "Pocket")
body9.addObject(pocket1)
pocket1.Profile = sketch10
pocket1.Type = "ThroughAll"

doc.recompute()
